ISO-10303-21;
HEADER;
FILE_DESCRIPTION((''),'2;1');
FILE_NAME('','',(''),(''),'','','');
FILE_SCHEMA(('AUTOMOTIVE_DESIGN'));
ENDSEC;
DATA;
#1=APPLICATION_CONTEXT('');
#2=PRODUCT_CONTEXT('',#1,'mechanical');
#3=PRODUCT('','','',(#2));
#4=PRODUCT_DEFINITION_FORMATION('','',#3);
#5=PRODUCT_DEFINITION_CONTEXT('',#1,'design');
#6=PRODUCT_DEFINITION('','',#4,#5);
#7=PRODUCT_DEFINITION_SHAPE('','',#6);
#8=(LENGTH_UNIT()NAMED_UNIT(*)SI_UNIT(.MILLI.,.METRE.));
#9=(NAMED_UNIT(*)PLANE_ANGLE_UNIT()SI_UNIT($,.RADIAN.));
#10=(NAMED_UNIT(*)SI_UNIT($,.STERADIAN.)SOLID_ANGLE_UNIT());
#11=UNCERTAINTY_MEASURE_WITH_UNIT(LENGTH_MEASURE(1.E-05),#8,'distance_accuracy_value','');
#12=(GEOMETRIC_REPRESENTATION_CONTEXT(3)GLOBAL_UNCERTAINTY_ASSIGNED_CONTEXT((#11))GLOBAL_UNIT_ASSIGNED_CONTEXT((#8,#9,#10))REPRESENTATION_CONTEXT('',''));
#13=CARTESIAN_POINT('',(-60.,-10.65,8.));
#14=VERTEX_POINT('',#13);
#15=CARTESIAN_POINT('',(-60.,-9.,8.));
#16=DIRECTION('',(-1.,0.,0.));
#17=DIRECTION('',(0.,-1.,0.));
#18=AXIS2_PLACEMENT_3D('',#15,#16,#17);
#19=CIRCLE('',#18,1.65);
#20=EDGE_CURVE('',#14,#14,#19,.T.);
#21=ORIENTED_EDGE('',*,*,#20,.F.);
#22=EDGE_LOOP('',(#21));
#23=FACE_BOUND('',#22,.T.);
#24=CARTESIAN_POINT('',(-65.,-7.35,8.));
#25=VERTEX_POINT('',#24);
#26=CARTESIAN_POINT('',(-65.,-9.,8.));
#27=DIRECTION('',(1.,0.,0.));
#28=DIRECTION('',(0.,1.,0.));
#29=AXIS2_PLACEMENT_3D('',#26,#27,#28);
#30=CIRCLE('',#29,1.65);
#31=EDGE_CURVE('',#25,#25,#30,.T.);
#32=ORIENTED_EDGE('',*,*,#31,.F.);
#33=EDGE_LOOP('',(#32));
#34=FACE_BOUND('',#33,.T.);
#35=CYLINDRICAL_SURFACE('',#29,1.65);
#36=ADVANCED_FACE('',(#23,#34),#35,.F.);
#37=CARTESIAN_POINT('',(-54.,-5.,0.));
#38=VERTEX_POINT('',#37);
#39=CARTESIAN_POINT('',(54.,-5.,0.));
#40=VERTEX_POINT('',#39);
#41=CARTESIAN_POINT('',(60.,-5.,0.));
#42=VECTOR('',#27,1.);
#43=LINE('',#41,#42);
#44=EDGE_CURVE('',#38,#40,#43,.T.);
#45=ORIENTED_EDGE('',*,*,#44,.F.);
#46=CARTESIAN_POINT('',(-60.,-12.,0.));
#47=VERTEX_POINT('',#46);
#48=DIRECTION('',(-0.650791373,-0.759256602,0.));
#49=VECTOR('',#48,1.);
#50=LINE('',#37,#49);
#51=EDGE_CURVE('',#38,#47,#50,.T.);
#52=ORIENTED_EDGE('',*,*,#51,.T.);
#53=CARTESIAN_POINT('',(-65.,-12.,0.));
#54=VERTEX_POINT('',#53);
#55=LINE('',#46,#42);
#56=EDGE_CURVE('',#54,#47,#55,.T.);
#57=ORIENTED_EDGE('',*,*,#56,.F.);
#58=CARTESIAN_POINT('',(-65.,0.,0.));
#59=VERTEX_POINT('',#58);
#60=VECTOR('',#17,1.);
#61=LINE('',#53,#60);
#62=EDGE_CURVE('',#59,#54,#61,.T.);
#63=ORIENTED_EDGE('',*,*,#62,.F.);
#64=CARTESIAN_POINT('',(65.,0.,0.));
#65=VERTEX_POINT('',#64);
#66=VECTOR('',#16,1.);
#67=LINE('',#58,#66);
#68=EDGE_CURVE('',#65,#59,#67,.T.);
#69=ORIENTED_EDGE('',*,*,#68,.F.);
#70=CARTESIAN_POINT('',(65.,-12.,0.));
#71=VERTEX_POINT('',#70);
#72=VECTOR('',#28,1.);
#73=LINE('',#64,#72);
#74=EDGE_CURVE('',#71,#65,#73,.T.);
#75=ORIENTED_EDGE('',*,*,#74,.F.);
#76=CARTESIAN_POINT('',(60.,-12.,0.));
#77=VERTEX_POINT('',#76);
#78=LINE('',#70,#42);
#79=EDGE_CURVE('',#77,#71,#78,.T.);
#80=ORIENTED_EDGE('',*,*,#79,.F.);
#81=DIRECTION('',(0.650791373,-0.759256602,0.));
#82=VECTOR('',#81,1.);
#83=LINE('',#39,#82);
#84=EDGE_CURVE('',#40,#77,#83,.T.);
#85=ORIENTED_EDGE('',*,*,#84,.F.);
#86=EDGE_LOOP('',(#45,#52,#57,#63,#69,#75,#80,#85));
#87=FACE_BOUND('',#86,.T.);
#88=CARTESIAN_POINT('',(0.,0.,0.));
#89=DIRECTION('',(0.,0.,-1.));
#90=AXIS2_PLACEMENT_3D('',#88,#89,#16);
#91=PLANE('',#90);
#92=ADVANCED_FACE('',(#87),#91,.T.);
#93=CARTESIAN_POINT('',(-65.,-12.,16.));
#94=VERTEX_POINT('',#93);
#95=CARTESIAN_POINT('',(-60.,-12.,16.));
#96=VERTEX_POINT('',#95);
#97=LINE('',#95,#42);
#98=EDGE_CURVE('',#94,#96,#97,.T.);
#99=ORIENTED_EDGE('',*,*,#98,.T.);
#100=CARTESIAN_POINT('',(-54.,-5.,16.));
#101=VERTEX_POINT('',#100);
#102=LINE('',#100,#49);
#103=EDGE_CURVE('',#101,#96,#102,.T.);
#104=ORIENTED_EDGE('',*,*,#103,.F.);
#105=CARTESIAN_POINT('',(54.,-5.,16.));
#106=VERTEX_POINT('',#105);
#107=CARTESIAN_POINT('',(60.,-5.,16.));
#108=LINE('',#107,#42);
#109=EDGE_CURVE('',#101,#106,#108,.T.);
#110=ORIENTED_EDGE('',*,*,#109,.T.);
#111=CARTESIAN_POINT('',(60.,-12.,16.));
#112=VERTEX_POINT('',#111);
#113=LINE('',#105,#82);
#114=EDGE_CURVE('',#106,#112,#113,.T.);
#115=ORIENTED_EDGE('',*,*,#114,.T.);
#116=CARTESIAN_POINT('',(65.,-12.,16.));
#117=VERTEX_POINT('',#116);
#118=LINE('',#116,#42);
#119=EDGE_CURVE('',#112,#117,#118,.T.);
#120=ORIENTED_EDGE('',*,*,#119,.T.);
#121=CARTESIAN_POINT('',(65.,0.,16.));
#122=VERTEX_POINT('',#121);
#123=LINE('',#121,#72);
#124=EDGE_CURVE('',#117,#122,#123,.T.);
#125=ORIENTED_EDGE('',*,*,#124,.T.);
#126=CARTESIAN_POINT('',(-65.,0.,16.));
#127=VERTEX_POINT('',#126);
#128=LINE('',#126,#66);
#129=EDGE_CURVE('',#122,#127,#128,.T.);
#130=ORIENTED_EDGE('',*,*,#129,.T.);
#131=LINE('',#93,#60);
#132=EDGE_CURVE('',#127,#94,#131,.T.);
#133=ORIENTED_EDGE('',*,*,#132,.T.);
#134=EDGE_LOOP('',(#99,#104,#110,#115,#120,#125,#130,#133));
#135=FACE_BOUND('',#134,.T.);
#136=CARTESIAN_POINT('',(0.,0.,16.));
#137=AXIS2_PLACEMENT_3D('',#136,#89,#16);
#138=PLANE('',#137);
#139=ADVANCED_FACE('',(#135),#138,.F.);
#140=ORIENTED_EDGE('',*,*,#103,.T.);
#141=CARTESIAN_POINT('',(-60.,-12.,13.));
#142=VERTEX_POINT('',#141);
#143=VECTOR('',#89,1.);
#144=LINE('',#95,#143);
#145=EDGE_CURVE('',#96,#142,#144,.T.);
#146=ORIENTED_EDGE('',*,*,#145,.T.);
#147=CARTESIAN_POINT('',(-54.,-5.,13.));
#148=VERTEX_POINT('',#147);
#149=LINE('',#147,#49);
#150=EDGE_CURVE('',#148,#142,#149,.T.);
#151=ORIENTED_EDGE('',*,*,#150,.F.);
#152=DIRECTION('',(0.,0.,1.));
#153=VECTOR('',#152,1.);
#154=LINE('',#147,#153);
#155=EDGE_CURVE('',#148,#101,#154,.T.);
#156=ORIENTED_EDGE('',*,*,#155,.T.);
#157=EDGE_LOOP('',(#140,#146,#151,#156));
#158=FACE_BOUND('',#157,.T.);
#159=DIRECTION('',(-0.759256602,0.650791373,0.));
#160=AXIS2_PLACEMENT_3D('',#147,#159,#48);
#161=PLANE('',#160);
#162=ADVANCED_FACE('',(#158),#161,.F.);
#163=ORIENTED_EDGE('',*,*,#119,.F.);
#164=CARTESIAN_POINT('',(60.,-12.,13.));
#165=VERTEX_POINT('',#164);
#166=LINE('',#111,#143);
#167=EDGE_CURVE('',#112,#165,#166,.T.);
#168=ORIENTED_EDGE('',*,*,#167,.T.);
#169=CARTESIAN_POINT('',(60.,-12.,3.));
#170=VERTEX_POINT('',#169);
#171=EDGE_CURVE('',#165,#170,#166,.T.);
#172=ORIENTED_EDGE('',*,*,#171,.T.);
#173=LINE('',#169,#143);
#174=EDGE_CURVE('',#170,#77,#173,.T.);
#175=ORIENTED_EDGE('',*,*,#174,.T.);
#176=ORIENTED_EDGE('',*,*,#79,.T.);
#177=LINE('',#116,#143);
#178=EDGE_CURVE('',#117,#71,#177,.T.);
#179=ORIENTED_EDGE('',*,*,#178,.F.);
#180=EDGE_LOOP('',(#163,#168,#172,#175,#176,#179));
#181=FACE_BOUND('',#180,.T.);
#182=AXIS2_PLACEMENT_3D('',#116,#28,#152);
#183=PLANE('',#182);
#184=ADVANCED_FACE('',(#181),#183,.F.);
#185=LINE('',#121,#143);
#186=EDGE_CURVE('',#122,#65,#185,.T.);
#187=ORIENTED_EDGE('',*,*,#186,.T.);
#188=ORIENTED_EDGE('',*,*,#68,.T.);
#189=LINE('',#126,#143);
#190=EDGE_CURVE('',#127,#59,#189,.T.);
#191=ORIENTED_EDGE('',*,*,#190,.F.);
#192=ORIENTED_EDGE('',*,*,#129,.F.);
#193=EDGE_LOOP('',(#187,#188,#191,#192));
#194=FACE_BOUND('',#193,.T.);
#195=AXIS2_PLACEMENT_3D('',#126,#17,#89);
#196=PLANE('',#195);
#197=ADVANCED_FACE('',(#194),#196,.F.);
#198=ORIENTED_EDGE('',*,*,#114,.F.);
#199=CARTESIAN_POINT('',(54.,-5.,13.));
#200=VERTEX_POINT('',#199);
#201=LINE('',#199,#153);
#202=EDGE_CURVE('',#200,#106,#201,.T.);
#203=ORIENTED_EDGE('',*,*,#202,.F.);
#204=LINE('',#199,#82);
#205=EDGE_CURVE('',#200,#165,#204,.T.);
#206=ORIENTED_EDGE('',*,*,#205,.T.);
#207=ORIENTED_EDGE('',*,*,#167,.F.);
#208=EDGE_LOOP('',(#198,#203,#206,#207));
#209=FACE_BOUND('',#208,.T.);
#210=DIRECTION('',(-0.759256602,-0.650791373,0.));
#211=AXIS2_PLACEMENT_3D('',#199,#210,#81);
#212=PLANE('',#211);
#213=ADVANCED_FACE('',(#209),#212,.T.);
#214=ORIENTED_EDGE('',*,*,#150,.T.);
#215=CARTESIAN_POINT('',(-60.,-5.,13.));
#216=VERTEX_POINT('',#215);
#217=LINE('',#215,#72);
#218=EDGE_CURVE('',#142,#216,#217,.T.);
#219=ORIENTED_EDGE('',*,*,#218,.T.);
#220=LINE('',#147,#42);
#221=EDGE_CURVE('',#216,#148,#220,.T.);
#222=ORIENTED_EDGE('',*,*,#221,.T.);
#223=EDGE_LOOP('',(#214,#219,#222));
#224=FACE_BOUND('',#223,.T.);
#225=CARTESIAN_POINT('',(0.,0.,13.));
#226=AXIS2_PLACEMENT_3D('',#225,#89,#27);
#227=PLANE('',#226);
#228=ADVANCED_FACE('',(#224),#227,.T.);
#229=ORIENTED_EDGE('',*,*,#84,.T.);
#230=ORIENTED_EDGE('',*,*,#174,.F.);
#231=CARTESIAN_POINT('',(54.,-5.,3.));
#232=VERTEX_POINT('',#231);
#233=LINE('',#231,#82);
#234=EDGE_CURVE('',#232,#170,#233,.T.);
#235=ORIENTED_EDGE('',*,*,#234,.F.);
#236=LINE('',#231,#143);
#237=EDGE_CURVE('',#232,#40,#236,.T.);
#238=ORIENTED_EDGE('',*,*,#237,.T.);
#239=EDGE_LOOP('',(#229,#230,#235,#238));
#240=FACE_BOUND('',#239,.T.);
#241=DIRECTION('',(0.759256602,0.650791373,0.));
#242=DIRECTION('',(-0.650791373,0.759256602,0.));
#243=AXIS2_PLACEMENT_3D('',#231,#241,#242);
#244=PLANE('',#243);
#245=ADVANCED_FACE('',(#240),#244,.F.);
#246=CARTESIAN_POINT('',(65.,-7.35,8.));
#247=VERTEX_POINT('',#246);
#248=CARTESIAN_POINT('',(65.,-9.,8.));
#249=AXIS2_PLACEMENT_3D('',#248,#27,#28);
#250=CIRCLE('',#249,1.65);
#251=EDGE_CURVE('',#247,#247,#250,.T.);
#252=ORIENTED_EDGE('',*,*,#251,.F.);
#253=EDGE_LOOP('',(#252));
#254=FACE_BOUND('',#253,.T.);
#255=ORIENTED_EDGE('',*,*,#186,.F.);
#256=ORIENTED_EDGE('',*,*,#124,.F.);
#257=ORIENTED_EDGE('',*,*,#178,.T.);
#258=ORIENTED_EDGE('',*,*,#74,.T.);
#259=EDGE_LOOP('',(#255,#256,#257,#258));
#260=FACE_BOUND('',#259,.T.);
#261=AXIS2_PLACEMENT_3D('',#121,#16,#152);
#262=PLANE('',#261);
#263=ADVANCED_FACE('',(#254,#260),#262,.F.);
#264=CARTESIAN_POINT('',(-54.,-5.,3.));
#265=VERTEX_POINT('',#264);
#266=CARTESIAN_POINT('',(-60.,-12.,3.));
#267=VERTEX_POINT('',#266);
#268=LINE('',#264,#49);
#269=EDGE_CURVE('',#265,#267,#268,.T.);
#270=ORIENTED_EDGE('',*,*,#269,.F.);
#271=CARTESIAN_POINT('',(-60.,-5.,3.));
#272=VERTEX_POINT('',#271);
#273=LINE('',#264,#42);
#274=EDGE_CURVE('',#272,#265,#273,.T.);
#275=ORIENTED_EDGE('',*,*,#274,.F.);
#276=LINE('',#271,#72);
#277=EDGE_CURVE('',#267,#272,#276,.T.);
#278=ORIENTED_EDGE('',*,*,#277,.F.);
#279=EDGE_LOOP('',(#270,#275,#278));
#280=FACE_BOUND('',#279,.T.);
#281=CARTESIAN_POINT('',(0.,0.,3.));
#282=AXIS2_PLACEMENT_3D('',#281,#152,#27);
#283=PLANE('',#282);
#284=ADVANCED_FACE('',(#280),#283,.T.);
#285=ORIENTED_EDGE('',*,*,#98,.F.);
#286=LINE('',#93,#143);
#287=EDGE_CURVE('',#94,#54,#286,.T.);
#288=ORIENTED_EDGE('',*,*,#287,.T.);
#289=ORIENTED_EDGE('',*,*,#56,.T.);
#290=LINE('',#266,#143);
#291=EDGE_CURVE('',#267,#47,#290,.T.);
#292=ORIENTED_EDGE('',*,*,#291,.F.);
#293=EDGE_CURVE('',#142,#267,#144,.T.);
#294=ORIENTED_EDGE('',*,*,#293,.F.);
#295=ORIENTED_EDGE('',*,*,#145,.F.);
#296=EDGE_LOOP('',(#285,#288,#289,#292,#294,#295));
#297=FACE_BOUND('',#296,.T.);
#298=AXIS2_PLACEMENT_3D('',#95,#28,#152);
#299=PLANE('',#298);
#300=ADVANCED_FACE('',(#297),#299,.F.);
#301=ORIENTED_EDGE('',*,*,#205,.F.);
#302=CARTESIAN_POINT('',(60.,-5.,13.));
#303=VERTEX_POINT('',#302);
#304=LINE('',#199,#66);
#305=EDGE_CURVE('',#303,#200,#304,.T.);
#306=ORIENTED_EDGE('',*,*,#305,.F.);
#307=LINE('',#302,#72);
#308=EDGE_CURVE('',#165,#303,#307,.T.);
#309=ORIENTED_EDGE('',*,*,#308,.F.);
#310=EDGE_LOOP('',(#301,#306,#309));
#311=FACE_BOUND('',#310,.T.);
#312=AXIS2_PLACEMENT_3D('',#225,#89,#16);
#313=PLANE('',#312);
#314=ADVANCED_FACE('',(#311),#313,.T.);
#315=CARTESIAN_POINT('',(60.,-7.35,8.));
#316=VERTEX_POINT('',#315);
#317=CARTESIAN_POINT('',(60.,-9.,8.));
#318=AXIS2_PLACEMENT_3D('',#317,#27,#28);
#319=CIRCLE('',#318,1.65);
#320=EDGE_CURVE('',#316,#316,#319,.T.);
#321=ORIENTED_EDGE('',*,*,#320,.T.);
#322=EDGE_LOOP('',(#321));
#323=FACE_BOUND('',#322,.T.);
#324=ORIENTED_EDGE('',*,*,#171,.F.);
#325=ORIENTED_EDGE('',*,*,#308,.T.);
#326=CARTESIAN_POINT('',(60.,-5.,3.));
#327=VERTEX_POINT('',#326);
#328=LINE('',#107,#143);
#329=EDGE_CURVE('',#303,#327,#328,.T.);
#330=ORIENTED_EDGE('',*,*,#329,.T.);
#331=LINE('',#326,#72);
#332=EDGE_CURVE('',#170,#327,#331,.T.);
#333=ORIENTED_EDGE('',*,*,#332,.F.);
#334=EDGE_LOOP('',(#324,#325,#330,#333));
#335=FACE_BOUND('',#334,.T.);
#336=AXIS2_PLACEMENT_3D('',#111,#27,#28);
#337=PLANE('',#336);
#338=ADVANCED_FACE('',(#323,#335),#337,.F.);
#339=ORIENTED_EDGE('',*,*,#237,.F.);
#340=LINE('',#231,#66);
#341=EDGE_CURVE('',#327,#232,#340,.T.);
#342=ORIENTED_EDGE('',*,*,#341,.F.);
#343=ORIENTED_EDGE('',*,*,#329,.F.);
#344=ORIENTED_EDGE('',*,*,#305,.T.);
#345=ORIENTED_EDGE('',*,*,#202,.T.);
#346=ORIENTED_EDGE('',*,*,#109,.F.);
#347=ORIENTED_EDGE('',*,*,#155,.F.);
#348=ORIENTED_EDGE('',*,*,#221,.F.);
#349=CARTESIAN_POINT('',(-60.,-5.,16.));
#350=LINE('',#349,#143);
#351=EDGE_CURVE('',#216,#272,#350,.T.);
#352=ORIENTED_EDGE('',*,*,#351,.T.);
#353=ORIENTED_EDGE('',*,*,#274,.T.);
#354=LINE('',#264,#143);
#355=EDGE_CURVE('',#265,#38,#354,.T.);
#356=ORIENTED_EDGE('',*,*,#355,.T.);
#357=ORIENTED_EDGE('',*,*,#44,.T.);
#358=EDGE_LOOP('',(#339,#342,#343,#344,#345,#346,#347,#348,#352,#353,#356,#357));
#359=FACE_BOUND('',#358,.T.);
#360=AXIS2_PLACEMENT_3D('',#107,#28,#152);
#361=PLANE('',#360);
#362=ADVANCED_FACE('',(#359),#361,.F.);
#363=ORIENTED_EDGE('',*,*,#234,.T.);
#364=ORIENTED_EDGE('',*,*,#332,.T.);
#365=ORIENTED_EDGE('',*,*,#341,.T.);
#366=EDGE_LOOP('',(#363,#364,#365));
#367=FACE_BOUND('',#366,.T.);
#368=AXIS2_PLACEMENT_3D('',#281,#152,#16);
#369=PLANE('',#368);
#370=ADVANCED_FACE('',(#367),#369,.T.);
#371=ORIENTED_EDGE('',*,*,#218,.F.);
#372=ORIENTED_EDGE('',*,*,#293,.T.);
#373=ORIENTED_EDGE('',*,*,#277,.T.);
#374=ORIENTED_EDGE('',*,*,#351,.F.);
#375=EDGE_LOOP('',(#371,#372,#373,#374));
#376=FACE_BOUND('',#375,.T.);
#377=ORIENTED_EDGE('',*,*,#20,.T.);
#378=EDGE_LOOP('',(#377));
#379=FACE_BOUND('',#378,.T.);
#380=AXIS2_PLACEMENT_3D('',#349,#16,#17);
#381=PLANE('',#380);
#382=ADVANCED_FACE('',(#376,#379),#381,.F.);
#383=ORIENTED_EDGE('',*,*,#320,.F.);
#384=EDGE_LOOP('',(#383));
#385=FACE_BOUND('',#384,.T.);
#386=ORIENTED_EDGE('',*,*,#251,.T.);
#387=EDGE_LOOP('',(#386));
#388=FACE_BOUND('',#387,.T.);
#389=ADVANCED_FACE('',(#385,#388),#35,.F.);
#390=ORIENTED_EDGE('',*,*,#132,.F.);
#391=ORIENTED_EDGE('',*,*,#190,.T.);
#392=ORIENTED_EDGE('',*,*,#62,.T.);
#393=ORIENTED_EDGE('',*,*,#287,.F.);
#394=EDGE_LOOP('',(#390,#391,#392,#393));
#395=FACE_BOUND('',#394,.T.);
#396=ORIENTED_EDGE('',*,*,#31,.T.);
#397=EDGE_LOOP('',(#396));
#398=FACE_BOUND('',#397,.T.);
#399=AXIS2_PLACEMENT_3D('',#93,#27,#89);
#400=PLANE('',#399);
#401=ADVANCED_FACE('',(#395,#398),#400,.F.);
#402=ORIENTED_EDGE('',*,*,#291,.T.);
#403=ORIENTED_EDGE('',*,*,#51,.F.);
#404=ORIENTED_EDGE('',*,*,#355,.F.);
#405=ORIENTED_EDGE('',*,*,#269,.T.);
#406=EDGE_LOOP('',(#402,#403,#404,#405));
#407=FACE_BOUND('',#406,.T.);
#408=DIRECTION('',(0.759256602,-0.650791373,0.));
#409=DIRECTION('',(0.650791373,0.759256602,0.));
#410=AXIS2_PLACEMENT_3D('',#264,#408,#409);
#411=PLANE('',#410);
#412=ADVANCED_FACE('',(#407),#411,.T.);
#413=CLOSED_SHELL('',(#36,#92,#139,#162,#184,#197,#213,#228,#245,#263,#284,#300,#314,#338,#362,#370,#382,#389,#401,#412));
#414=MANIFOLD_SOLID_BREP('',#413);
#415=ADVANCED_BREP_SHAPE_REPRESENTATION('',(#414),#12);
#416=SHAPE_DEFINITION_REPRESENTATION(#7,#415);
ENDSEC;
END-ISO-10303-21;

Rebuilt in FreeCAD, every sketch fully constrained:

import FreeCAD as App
import Part
import Sketcher
Q = App.Units.Quantity

doc = App.newDocument("Part")
body = doc.addObject("PartDesign::Body", "Body")

# Sketch on XY plane
sketch1 = body.newObject("Sketcher::SketchObject", "Sketch")
sketch1.AttachmentSupport = (doc.getObject("XY_Plane"), [""])
sketch1.MapMode = "FlatFace"
sketch1.addGeometry(Part.LineSegment(App.Vector(65, 0, 0), App.Vector(-65, 0, 0)), False)
sketch1.addGeometry(Part.LineSegment(App.Vector(-65, 0, 0), App.Vector(-65, -12, 0)), False)
sketch1.addGeometry(Part.LineSegment(App.Vector(-65, -12, 0), App.Vector(-60, -12, 0)), False)
sketch1.addGeometry(Part.LineSegment(App.Vector(-60, -12, 0), App.Vector(-60, -5, 0)), False)
sketch1.addGeometry(Part.LineSegment(App.Vector(-60, -5, 0), App.Vector(60, -5, 0)), False)
sketch1.addGeometry(Part.LineSegment(App.Vector(60, -5, 0), App.Vector(60, -12, 0)), False)
sketch1.addGeometry(Part.LineSegment(App.Vector(60, -12, 0), App.Vector(65, -12, 0)), False)
sketch1.addGeometry(Part.LineSegment(App.Vector(65, -12, 0), App.Vector(65, 0, 0)), False)
sketch1.addConstraint(Sketcher.Constraint("Coincident", 0, 2, 1, 1))
sketch1.addConstraint(Sketcher.Constraint("Coincident", 1, 2, 2, 1))
sketch1.addConstraint(Sketcher.Constraint("Coincident", 2, 2, 3, 1))
sketch1.addConstraint(Sketcher.Constraint("Coincident", 3, 2, 4, 1))
sketch1.addConstraint(Sketcher.Constraint("Coincident", 4, 2, 5, 1))
sketch1.addConstraint(Sketcher.Constraint("Coincident", 5, 2, 6, 1))
sketch1.addConstraint(Sketcher.Constraint("Coincident", 6, 2, 7, 1))
sketch1.addConstraint(Sketcher.Constraint("Coincident", 7, 2, 0, 1))
sketch1.addConstraint(Sketcher.Constraint("Horizontal", 0))
sketch1.addConstraint(Sketcher.Constraint("Vertical", 1))
sketch1.addConstraint(Sketcher.Constraint("Horizontal", 2))
sketch1.addConstraint(Sketcher.Constraint("Vertical", 3))
sketch1.addConstraint(Sketcher.Constraint("Horizontal", 4))
sketch1.addConstraint(Sketcher.Constraint("Vertical", 5))
sketch1.addConstraint(Sketcher.Constraint("Horizontal", 6))
sketch1.addConstraint(Sketcher.Constraint("Vertical", 7))
sketch1.addConstraint(Sketcher.Constraint("Symmetric", 0, 2, 7, 2, -1, 1))
sketch1.addConstraint(Sketcher.Constraint("Symmetric", 2, 2, 5, 2, -2))
sketch1.addConstraint(Sketcher.Constraint("DistanceX", 0, 2, 0, 1, Q("130 mm")))
sketch1.addConstraint(Sketcher.Constraint("DistanceX", 2, 1, 2, 2, Q("5 mm")))
sketch1.addConstraint(Sketcher.Constraint("DistanceY", 1, 2, 1, 1, Q("12 mm")))
sketch1.addConstraint(Sketcher.Constraint("DistanceY", 3, 1, 3, 2, Q("7 mm")))
pad1 = body.newObject("PartDesign::Pad", "Pad")
pad1.Profile = sketch1
pad1.Length = 16

# Sketch on YZ plane
sketch2 = body.newObject("Sketcher::SketchObject", "Sketch001")
sketch2.AttachmentSupport = (doc.getObject("YZ_Plane"), [""])
sketch2.MapMode = "FlatFace"
sketch2.AttachmentOffset = App.Placement(App.Vector(0, 0, -60), App.Rotation())
sketch2.addGeometry(Part.Circle(App.Vector(-9, 8, 0), App.Vector(0, 0, 1), 1.6), False)
sketch2.addConstraint(Sketcher.Constraint("Diameter", 0, Q("3.3 mm")))
sketch2.addConstraint(Sketcher.Constraint("DistanceX", 0, 3, -1, 1, Q("9 mm")))
sketch2.addConstraint(Sketcher.Constraint("DistanceY", -1, 1, 0, 3, Q("8 mm")))
pocket1 = body.newObject("PartDesign::Pocket", "Pocket")
pocket1.Profile = sketch2
pocket1.Type = "ThroughAll"
pocket1.Midplane = True

# Sketch on XY plane
sketch3 = body.newObject("Sketcher::SketchObject", "Sketch002")
sketch3.AttachmentSupport = (doc.getObject("XY_Plane"), [""])
sketch3.MapMode = "FlatFace"
sketch3.addGeometry(Part.LineSegment(App.Vector(-54, -5, 0), App.Vector(-60, -12, 0)), False)
sketch3.addGeometry(Part.LineSegment(App.Vector(-60, -12, 0), App.Vector(-60, -5, 0)), False)
sketch3.addGeometry(Part.LineSegment(App.Vector(-60, -5, 0), App.Vector(-54, -5, 0)), False)
sketch3.addConstraint(Sketcher.Constraint("Coincident", 0, 2, 1, 1))
sketch3.addConstraint(Sketcher.Constraint("Coincident", 1, 2, 2, 1))
sketch3.addConstraint(Sketcher.Constraint("Coincident", 2, 2, 0, 1))
sketch3.addConstraint(Sketcher.Constraint("Vertical", 1))
sketch3.addConstraint(Sketcher.Constraint("Horizontal", 2))
sketch3.addConstraint(Sketcher.Constraint("DistanceX", 2, 1, 2, 2, Q("6 mm")))
sketch3.addConstraint(Sketcher.Constraint("DistanceY", 1, 1, 1, 2, Q("7 mm")))
sketch3.addConstraint(Sketcher.Constraint("DistanceX", 0, 2, -1, 1, Q("60 mm")))
sketch3.addConstraint(Sketcher.Constraint("DistanceY", 0, 2, -1, 1, Q("12 mm")))
pad2 = body.newObject("PartDesign::Pad", "Pad001")
pad2.Profile = sketch3
pad2.Length = 3
doc.recompute()

datumplane = body.newObject("PartDesign::Plane", "DatumPlane")
datumplane.AttachmentSupport = (doc.getObject("XY_Plane"), [""])
datumplane.MapMode = "FlatFace"
datumplane.AttachmentOffset = App.Placement(App.Vector(0, 0, 8), App.Rotation())
mirrored = body.newObject("PartDesign::Mirrored", "Mirrored")
mirrored.Originals = [pad2]
mirrored.MirrorPlane = (datumplane, [""])
body.Tip = mirrored
doc.recompute()

mirrored2 = body.newObject("PartDesign::Mirrored", "Mirrored001")
mirrored2.Originals = [pad2]
mirrored2.MirrorPlane = (doc.getObject("YZ_Plane"), [""])
body.Tip = mirrored2

# Sketch on XY plane
sketch4 = body.newObject("Sketcher::SketchObject", "Sketch003")
sketch4.AttachmentSupport = (doc.getObject("XY_Plane"), [""])
sketch4.MapMode = "FlatFace"
sketch4.AttachmentOffset = App.Placement(App.Vector(0, 0, 16), App.Rotation())
sketch4.addGeometry(Part.LineSegment(App.Vector(54, -5, 0), App.Vector(60, -12, 0)), False)
sketch4.addGeometry(Part.LineSegment(App.Vector(60, -12, 0), App.Vector(60, -5, 0)), False)
sketch4.addGeometry(Part.LineSegment(App.Vector(60, -5, 0), App.Vector(54, -5, 0)), False)
sketch4.addConstraint(Sketcher.Constraint("Coincident", 0, 2, 1, 1))
sketch4.addConstraint(Sketcher.Constraint("Coincident", 1, 2, 2, 1))
sketch4.addConstraint(Sketcher.Constraint("Coincident", 2, 2, 0, 1))
sketch4.addConstraint(Sketcher.Constraint("Vertical", 1))
sketch4.addConstraint(Sketcher.Constraint("Horizontal", 2))
sketch4.addConstraint(Sketcher.Constraint("DistanceX", 2, 2, 2, 1, Q("6 mm")))
sketch4.addConstraint(Sketcher.Constraint("DistanceY", 1, 1, 1, 2, Q("7 mm")))
sketch4.addConstraint(Sketcher.Constraint("DistanceX", -1, 1, 0, 2, Q("60 mm")))
sketch4.addConstraint(Sketcher.Constraint("DistanceY", 0, 2, -1, 1, Q("12 mm")))
pad3 = body.newObject("PartDesign::Pad", "Pad002")
pad3.Profile = sketch4
pad3.Length = 3
pad3.Reversed = True

doc.recompute()
